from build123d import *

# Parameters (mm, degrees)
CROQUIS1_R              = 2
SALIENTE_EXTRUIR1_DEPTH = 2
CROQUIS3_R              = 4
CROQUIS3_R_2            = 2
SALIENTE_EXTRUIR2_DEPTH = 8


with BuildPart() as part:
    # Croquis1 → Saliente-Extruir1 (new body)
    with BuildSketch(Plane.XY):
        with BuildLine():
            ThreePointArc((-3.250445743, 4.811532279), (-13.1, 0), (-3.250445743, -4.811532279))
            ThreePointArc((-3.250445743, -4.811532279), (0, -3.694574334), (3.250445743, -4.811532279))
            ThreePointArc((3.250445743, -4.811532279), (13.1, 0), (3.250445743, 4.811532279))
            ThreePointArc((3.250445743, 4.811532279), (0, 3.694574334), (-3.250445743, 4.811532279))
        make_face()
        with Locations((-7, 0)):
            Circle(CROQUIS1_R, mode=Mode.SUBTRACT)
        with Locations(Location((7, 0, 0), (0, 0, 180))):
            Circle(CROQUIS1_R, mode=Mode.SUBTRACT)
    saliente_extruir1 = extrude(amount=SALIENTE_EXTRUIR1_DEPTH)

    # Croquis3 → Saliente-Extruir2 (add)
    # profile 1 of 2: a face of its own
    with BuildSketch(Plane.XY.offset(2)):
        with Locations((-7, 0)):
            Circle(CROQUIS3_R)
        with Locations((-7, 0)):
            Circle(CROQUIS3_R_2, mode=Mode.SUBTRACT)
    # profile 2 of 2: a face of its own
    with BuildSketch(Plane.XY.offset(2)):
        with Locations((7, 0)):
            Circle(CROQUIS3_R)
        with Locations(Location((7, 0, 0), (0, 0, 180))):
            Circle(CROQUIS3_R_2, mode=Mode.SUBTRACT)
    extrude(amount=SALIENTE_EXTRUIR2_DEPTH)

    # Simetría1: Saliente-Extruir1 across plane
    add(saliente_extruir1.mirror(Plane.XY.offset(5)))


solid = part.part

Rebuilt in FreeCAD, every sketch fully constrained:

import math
import FreeCAD as App
import Part
import Sketcher
from FreeCAD import Vector

doc = App.newDocument("Part")
body = doc.addObject("PartDesign::Body", "Body")

sketch1 = body.newObject("Sketcher::SketchObject", "Sketch")
sketch1.AttachmentSupport = (doc.getObject("XY_Plane"), [""])
sketch1.MapMode = "FlatFace"
sketch1.addGeometry([
    Part.ArcOfCircle(Part.Circle(Vector(-7, 0, 0), Vector(0, 0, 1), 6.1), math.radians(52.071253), math.radians(307.928747)),
    Part.ArcOfCircle(Part.Circle(Vector(0, -8.982595, 0), Vector(0, 0, 1), 5.28802), math.radians(52.071253), math.radians(127.928747)),
    Part.ArcOfCircle(Part.Circle(Vector(7, 0, 0), Vector(0, 0, 1), 6.1), math.radians(-127.928747), math.radians(127.928747)),
    Part.ArcOfCircle(Part.Circle(Vector(0, 8.982595, 0), Vector(0, 0, 1), 5.28802), math.radians(-127.928747), math.radians(-52.071253)),
    Part.Circle(Vector(-7, 0, 0), Vector(0, 0, 1), 2),
    Part.Circle(Vector(7, 0, 0), Vector(0, 0, 1), 2),
], False)
sketch1.addConstraint([
    Sketcher.Constraint("Tangent", 0, 2, 1, 2),
    Sketcher.Constraint("Tangent", 1, 1, 2, 1),
    Sketcher.Constraint("Tangent", 2, 2, 3, 2),
    Sketcher.Constraint("Tangent", 3, 1, 0, 1),
    Sketcher.Constraint("Coincident", 4, 3, 0, 3),
    Sketcher.Constraint("Coincident", 5, 3, 2, 3),
    Sketcher.Constraint("Equal", 0, 2),
    Sketcher.Constraint("Equal", 1, 3),
    Sketcher.Constraint("Equal", 4, 5),
    Sketcher.Constraint("Symmetric", 0, 3, 2, 3, -1, 1),
    Sketcher.Constraint("PointOnObject", 0, 3, -1),
    Sketcher.Constraint("Diameter", 4, 4.0),
    Sketcher.Constraint("Radius", 0, 6.1),
    Sketcher.Constraint("DistanceX", 0, 3, -1, 1, 7.0),
    Sketcher.Constraint("Radius", 1, 5.28802),
])
pad1 = body.newObject("PartDesign::Pad", "Pad")
pad1.Profile = sketch1
pad1.Length = 2

sketch2 = body.newObject("Sketcher::SketchObject", "Sketch001")
sketch2.AttachmentSupport = (doc.getObject("XY_Plane"), [""])
sketch2.MapMode = "FlatFace"
sketch2.AttachmentOffset = App.Placement(Vector(0, 0, 2), App.Rotation())
sketch2.addGeometry([
    Part.Circle(Vector(-7, 0, 0), Vector(0, 0, 1), 4),
    Part.Circle(Vector(-7, 0, 0), Vector(0, 0, 1), 2),
    Part.Circle(Vector(7, 0, 0), Vector(0, 0, 1), 4),
    Part.Circle(Vector(7, 0, 0), Vector(0, 0, 1), 2),
], False)
sketch2.addConstraint([
    Sketcher.Constraint("Coincident", 1, 3, 0, 3),
    Sketcher.Constraint("Coincident", 3, 3, 2, 3),
    Sketcher.Constraint("Equal", 0, 2),
    Sketcher.Constraint("Equal", 1, 3),
    Sketcher.Constraint("Symmetric", 0, 3, 2, 3, -1, 1),
    Sketcher.Constraint("PointOnObject", 0, 3, -1),
    Sketcher.Constraint("Diameter", 0, 8.0),
    Sketcher.Constraint("Diameter", 1, 4.0),
    Sketcher.Constraint("DistanceX", 0, 3, -1, 1, 7.0),
])
pad2 = body.newObject("PartDesign::Pad", "Pad001")
pad2.Profile = sketch2
pad2.Length = 8
doc.recompute()

datumplane = body.newObject("PartDesign::Plane", "DatumPlane")
datumplane.AttachmentSupport = (doc.getObject("XY_Plane"), [""])
datumplane.MapMode = "FlatFace"
datumplane.AttachmentOffset = App.Placement(Vector(0, 0, 5), App.Rotation())
mirrored = body.newObject("PartDesign::Mirrored", "Mirrored")
mirrored.Originals = [pad1]
mirrored.MirrorPlane = (datumplane, [""])
body.Tip = mirrored

doc.recompute()
